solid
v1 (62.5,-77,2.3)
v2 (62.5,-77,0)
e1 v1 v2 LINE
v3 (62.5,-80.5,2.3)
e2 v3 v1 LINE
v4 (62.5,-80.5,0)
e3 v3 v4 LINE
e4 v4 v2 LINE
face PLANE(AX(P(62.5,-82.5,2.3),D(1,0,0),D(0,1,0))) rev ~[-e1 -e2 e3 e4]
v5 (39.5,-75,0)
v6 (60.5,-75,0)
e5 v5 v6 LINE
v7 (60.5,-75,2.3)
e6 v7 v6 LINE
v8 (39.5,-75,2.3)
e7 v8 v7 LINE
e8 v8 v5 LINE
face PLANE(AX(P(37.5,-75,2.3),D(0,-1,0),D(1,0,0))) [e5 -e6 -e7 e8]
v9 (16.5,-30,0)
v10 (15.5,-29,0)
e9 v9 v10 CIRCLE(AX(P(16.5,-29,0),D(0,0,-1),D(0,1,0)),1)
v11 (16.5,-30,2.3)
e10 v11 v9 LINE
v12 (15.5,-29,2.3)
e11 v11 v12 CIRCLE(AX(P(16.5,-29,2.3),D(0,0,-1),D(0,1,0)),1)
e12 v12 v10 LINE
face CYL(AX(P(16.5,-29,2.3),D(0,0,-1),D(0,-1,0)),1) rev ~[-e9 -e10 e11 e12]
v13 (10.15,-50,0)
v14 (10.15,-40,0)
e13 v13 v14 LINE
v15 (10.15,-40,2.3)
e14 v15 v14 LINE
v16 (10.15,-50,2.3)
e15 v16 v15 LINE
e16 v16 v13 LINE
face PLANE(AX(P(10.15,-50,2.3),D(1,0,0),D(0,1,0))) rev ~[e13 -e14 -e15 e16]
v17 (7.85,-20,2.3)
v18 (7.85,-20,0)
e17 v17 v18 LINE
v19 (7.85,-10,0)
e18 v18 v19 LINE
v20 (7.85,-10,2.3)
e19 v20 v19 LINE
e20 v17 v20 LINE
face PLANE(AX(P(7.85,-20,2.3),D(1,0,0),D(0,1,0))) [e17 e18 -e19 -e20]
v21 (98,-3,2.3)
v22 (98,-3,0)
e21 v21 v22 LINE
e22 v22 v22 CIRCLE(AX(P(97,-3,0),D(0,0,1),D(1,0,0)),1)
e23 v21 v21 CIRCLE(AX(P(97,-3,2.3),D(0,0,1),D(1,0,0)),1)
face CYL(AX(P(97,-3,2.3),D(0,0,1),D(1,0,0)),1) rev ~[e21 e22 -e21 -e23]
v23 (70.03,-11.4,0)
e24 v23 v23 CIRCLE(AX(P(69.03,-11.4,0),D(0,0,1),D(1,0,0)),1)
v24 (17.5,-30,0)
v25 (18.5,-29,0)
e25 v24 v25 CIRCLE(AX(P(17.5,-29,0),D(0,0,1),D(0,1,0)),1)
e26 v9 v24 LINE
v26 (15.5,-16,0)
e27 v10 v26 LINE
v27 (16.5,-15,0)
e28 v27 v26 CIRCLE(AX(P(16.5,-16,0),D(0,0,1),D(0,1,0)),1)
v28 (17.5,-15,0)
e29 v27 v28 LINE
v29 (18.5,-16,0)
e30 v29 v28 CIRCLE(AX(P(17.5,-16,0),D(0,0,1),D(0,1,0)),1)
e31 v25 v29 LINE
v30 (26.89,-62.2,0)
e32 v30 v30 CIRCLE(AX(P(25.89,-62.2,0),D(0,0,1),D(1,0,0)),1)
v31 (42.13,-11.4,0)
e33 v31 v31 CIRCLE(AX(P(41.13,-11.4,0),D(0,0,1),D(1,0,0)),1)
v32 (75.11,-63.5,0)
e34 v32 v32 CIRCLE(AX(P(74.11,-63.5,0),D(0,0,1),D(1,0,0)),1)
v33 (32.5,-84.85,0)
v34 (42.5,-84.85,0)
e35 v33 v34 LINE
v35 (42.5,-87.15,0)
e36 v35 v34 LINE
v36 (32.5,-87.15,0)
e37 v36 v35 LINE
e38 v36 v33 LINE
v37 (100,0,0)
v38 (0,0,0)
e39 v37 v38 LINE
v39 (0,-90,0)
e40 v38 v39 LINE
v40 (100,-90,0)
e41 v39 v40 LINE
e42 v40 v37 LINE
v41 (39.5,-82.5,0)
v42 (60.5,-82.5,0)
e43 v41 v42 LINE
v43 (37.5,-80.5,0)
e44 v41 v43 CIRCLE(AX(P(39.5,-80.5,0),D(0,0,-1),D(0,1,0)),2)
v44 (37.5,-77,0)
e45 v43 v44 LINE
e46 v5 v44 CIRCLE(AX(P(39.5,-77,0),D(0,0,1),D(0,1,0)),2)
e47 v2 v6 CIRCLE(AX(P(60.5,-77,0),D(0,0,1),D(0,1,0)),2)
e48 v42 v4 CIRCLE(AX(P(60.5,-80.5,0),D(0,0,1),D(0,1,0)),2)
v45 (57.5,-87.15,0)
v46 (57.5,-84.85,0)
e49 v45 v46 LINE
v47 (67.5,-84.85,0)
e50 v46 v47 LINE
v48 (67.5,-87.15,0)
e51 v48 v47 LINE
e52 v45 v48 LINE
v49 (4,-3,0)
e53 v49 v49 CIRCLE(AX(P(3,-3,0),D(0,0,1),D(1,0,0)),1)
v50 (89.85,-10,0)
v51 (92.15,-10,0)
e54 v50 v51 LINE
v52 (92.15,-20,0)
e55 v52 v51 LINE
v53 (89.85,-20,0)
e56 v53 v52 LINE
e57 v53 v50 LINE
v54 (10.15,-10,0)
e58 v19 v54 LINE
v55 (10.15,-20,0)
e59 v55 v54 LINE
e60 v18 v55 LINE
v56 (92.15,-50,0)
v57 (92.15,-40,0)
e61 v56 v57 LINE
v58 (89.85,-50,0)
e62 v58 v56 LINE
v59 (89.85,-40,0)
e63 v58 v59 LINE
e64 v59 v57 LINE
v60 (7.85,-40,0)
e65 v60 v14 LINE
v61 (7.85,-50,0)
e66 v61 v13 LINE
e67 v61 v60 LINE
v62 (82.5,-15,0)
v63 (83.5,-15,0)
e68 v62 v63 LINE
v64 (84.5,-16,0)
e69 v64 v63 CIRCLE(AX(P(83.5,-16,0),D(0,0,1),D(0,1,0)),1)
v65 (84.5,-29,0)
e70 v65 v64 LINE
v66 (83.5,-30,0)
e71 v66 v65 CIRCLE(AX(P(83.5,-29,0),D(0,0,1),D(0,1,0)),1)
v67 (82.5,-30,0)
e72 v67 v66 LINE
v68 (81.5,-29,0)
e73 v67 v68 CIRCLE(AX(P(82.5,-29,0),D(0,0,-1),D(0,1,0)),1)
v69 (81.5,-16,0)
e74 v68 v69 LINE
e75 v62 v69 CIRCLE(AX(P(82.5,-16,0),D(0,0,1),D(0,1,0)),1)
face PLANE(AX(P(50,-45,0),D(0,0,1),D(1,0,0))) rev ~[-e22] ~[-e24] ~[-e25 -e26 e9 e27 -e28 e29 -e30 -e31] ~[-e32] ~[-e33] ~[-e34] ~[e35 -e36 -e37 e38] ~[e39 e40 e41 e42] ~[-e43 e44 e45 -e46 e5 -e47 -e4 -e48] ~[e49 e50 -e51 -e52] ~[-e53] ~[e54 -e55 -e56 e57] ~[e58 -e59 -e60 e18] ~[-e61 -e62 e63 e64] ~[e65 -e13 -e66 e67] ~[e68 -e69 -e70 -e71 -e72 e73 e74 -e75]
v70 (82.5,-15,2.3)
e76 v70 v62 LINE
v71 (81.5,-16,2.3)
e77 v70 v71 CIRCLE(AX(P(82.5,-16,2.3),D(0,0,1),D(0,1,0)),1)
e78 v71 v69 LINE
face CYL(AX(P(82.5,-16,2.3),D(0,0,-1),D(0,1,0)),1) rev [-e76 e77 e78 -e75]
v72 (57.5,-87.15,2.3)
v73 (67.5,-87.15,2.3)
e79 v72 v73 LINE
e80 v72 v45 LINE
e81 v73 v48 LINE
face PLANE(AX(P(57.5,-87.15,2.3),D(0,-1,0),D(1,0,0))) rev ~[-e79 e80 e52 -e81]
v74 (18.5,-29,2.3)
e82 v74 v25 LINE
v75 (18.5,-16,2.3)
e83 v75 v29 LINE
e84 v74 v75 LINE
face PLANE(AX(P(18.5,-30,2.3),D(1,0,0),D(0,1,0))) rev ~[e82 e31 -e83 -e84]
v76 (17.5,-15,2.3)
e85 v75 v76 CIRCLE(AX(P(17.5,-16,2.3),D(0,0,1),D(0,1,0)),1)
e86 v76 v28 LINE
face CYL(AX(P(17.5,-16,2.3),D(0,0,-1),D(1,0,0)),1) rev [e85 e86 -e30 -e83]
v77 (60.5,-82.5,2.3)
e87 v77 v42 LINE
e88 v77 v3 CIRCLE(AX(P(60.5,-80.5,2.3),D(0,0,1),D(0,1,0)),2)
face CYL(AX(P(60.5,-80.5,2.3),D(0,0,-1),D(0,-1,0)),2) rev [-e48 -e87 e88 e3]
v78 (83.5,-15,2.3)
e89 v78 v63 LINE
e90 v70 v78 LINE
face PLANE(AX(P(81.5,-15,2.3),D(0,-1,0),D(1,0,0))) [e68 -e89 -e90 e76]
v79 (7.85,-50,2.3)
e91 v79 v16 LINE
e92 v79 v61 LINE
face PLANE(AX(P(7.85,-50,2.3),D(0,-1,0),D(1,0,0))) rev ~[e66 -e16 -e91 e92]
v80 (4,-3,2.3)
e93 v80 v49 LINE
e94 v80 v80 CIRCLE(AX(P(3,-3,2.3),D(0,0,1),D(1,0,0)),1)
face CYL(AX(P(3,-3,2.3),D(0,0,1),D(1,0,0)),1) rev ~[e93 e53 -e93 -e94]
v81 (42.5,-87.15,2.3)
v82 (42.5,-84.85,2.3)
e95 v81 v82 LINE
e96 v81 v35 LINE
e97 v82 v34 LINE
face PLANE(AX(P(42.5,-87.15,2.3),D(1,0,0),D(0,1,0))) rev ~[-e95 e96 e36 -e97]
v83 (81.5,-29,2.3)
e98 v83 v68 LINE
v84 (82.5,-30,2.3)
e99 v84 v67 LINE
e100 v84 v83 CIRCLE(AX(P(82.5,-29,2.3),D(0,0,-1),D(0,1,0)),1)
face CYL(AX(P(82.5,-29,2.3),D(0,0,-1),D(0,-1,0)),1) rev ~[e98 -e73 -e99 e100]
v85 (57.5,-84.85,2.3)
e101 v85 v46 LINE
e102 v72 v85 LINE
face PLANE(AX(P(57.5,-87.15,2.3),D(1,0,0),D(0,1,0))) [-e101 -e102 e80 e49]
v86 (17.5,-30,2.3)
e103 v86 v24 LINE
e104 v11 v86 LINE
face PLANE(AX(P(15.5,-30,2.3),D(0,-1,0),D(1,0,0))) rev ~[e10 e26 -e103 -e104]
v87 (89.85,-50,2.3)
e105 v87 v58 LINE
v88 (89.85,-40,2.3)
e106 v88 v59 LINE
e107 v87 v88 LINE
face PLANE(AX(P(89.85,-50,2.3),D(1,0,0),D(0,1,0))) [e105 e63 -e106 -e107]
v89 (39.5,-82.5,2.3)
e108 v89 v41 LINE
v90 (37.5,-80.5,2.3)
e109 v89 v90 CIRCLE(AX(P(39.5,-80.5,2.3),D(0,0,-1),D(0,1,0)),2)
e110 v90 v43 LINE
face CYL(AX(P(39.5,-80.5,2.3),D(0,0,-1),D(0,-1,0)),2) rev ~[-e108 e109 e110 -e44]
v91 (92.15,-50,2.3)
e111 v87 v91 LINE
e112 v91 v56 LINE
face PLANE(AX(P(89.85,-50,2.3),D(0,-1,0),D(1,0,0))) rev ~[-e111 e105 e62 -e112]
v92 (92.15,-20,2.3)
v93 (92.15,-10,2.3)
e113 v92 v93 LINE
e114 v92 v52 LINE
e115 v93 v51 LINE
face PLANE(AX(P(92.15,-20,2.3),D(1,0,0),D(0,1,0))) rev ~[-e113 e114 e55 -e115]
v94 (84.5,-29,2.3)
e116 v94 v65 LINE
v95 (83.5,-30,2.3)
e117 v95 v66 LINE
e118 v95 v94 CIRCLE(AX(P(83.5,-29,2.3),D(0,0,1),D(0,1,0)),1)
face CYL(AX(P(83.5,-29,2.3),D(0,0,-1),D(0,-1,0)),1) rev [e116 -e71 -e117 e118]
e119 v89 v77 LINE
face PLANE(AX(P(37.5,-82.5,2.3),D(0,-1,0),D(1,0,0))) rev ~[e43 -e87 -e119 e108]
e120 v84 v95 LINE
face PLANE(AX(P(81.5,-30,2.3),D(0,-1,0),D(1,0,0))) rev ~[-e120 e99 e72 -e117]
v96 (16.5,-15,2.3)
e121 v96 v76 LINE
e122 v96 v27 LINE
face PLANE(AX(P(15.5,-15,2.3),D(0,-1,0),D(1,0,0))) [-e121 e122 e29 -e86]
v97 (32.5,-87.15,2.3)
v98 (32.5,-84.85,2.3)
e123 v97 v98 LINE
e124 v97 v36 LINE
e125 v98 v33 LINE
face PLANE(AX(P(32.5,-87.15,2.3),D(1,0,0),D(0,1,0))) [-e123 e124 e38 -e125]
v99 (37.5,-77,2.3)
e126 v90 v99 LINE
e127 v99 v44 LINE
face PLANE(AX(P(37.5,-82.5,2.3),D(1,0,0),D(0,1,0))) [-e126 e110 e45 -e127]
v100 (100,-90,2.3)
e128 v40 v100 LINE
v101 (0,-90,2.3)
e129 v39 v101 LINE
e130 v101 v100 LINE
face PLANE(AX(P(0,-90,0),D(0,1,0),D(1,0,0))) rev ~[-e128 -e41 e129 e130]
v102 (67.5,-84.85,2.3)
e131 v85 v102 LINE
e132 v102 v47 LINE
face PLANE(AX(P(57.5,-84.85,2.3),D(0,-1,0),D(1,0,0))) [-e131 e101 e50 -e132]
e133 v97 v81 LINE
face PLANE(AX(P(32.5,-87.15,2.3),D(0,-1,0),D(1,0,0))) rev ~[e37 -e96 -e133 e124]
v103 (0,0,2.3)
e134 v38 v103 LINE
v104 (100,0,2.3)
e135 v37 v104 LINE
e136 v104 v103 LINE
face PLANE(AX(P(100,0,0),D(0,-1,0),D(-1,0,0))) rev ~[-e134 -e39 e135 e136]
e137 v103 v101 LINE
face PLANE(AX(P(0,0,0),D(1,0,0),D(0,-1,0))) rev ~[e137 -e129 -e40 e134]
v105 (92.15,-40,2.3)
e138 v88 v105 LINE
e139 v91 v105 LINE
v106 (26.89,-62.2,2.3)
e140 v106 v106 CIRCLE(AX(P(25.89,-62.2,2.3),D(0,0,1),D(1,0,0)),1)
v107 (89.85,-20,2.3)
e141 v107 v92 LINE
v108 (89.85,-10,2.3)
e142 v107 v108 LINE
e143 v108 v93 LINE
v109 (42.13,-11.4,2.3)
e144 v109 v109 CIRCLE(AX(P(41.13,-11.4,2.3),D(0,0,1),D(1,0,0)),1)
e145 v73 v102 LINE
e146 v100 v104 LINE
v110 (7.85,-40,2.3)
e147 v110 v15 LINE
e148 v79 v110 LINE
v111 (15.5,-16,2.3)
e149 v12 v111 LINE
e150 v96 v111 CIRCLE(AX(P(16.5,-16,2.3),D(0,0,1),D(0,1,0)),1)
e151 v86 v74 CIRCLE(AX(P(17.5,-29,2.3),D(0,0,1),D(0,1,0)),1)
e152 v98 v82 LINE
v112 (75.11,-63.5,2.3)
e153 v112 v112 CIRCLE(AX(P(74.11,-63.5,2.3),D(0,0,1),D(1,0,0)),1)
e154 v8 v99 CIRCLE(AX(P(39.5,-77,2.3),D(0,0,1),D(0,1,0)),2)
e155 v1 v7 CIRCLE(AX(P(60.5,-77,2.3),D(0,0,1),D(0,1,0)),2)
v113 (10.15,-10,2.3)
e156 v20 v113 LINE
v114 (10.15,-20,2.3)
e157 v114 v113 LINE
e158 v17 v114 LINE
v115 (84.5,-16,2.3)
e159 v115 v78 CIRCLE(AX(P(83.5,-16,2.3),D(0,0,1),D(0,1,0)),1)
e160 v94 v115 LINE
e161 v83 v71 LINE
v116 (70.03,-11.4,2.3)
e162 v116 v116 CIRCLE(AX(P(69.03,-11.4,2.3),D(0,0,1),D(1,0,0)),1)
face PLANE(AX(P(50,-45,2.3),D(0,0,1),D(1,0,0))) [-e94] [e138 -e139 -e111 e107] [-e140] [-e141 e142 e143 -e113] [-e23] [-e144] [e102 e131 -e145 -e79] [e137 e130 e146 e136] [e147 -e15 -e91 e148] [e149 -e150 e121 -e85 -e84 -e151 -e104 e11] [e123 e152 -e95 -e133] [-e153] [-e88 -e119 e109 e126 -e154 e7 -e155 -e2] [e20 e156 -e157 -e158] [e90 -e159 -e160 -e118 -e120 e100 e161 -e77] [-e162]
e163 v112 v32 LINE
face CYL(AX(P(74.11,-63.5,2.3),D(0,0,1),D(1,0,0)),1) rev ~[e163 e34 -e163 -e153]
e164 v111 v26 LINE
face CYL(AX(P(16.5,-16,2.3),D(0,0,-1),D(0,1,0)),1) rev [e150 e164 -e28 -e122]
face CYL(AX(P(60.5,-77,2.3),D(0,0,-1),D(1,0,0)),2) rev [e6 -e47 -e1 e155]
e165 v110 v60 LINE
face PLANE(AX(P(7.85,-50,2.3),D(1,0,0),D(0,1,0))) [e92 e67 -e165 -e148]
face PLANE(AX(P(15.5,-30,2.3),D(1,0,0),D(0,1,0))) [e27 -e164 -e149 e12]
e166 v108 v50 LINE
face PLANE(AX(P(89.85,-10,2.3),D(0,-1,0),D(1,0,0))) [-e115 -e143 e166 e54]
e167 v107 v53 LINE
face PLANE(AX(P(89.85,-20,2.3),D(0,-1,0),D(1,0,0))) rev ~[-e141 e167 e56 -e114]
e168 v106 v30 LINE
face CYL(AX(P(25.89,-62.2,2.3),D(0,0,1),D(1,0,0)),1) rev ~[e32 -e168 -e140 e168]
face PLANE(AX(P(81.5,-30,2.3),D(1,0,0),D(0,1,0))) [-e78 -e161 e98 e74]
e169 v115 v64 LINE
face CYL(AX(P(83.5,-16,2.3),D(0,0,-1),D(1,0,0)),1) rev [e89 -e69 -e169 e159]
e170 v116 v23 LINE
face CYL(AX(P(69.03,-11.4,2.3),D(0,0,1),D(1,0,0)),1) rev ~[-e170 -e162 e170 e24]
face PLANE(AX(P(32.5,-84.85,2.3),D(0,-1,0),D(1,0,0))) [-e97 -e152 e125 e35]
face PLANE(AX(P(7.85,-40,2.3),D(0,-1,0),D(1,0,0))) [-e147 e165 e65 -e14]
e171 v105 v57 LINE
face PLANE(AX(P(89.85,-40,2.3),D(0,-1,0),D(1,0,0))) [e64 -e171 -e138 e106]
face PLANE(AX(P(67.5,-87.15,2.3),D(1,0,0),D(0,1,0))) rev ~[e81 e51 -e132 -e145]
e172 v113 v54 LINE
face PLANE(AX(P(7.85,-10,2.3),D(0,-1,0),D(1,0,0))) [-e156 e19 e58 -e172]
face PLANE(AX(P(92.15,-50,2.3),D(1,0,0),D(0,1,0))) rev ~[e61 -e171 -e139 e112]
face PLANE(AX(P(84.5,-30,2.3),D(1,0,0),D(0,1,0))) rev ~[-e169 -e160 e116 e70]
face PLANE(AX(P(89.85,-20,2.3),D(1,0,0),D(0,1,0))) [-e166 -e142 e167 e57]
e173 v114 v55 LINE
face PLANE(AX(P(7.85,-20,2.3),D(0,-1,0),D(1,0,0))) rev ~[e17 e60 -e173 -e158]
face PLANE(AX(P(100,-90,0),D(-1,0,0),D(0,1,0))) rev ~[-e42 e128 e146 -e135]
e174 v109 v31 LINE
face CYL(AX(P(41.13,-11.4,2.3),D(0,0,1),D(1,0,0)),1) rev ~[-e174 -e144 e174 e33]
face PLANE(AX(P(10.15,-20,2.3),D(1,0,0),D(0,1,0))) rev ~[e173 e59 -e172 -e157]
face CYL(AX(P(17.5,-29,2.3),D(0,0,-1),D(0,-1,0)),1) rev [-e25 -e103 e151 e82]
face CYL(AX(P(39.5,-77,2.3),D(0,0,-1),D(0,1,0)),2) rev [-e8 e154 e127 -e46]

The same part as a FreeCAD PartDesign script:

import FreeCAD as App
import Part
import Sketcher

V = App.Vector
Q = App.Units.Quantity


def edges_at(feature, points):
    """Names of the edges that pass closest to the given points."""
    edges = feature.Shape.Edges
    near = lambda p: min(range(len(edges)), key=lambda i: edges[i].distToShape(Part.Vertex(*p))[0])
    return sorted({f"Edge{near(p) + 1}" for p in points})


def add_polygon(sketch, points):
    """Adds a closed chain of lines whose ends are joined by coincident constraints."""
    first, n = sketch.GeometryCount, len(points)
    for a, b in zip(points, points[1:] + points[:1]):
        sketch.addGeometry(Part.LineSegment(App.Vector(*a, 0), App.Vector(*b, 0)), False)
    for i in range(n):
        sketch.addConstraint(Sketcher.Constraint("Coincident", first + i, 2, first + (i + 1) % n, 1))

doc = App.newDocument("Part")
body = doc.addObject("PartDesign::Body", "Body")

# Sketch on XY plane
sketch1 = body.newObject("Sketcher::SketchObject", "Sketch")
sketch1.AttachmentSupport = (doc.getObject("XY_Plane"), [""])
sketch1.MapMode = "FlatFace"
add_polygon(sketch1, [(0, -90), (100, -90), (100, 0), (0, 0)])  # lines 0-3
sketch1.addConstraint([
    Sketcher.Constraint("Horizontal", 0),
    Sketcher.Constraint("Vertical", 1),
    Sketcher.Constraint("Horizontal", 2),
    Sketcher.Constraint("Vertical", 3),
    Sketcher.Constraint("Coincident", 2, 2, -1, 1),
    Sketcher.Constraint("DistanceX", 0, 1, 0, 2, Q("100 mm")),
    Sketcher.Constraint("DistanceY", 1, 1, 1, 2, Q("90 mm")),
])
pad1 = body.newObject("PartDesign::Pad", "Pad")
pad1.Profile = sketch1
pad1.Length = 2.3

# Sketch on XY plane
sketch2 = body.newObject("Sketcher::SketchObject", "Sketch001")
sketch2.AttachmentSupport = (doc.getObject("XY_Plane"), [""])
sketch2.MapMode = "FlatFace"
sketch2.AttachmentOffset = App.Placement(V(0, 0, 2.3), App.Rotation())
add_polygon(sketch2, [(89.8, -10), (89.8, -20), (92.2, -20), (92.2, -10)])  # lines 0-3
add_polygon(sketch2, [(89.8, -40), (89.8, -50), (92.2, -50), (92.2, -40)])  # lines 4-7
add_polygon(sketch2, [(7.8, -10), (7.8, -20), (10.2, -20), (10.2, -10)])  # lines 8-11
add_polygon(sketch2, [(7.8, -40), (7.8, -50), (10.2, -50), (10.2, -40)])  # lines 12-15
add_polygon(sketch2, [(32.5, -84.8), (32.5, -87.2), (42.5, -87.2), (42.5, -84.8)])  # lines 16-19
add_polygon(sketch2, [(57.5, -84.8), (57.5, -87.2), (67.5, -87.2), (67.5, -84.8)])  # lines 20-23
sketch2.addConstraint([
    Sketcher.Constraint("Vertical", 0),
    Sketcher.Constraint("Horizontal", 1),
    Sketcher.Constraint("Vertical", 2),
    Sketcher.Constraint("Horizontal", 3),
    Sketcher.Constraint("Vertical", 4),
    Sketcher.Constraint("Horizontal", 5),
    Sketcher.Constraint("Vertical", 6),
    Sketcher.Constraint("Horizontal", 7),
    Sketcher.Constraint("Vertical", 8),
    Sketcher.Constraint("Horizontal", 9),
    Sketcher.Constraint("Vertical", 10),
    Sketcher.Constraint("Horizontal", 11),
    Sketcher.Constraint("Vertical", 12),
    Sketcher.Constraint("Horizontal", 13),
    Sketcher.Constraint("Vertical", 14),
    Sketcher.Constraint("Horizontal", 15),
    Sketcher.Constraint("Vertical", 16),
    Sketcher.Constraint("Horizontal", 17),
    Sketcher.Constraint("Vertical", 18),
    Sketcher.Constraint("Horizontal", 19),
    Sketcher.Constraint("Vertical", 20),
    Sketcher.Constraint("Horizontal", 21),
    Sketcher.Constraint("Vertical", 22),
    Sketcher.Constraint("Horizontal", 23),
    Sketcher.Constraint("Horizontal", 1, 2, 8, 2),
    Sketcher.Constraint("Horizontal", 3, 2, 10, 2),
    Sketcher.Constraint("Horizontal", 5, 2, 12, 2),
    Sketcher.Constraint("Horizontal", 7, 2, 14, 2),
    Sketcher.Constraint("Horizontal", 17, 2, 20, 2),
    Sketcher.Constraint("Horizontal", 19, 2, 22, 2),
    Sketcher.Constraint("Vertical", 3, 2, 4, 2),
    Sketcher.Constraint("Vertical", 2, 2, 5, 2),
    Sketcher.Constraint("Vertical", 11, 2, 12, 2),
    Sketcher.Constraint("Vertical", 10, 2, 13, 2),
    Sketcher.Constraint("Equal", 7, 9),
    Sketcher.Constraint("Equal", 19, 21),
    Sketcher.Constraint("Equal", 23, 0),
    Sketcher.Constraint("Equal", 2, 4),
    Sketcher.Constraint("Equal", 15, 16),
    Sketcher.Constraint("DistanceX", 17, 1, 17, 2, Q("10 mm")),
    Sketcher.Constraint("DistanceX", 1, 1, 1, 2, Q("2.3 mm")),
    Sketcher.Constraint("DistanceY", 0, 2, -1, 1, Q("20 mm")),
    Sketcher.Constraint("DistanceY", 4, 2, -1, 1, Q("50 mm")),
    Sketcher.Constraint("DistanceX", 8, 2, 0, 2, Q("82 mm")),
    Sketcher.Constraint("DistanceX", 17, 2, 20, 2, Q("15 mm")),
    Sketcher.Constraint("DistanceX", -1, 1, 16, 2, Q("32.5 mm")),
    Sketcher.Constraint("DistanceX", -1, 1, 0, 2, Q("89.85 mm")),
    Sketcher.Constraint("DistanceY", 16, 2, -1, 1, Q("87.15 mm")),
])
pocket1 = body.newObject("PartDesign::Pocket", "Pocket")
pocket1.Profile = sketch2
pocket1.Type = "ThroughAll"

# Sketch on XY plane
sketch3 = body.newObject("Sketcher::SketchObject", "Sketch002")
sketch3.AttachmentSupport = (doc.getObject("XY_Plane"), [""])
sketch3.MapMode = "FlatFace"
sketch3.AttachmentOffset = App.Placement(V(0, 0, 2.3), App.Rotation())
sketch3.addGeometry([
    Part.Circle(V(3, -3, 0), V(0, 0, 1), 1),  # 0
    Part.Circle(V(97, -3, 0), V(0, 0, 1), 1),  # 1
    Part.Circle(V(41.1, -11.4, 0), V(0, 0, 1), 1),  # 2
    Part.Circle(V(69, -11.4, 0), V(0, 0, 1), 1),  # 3
    Part.Circle(V(25.9, -62.2, 0), V(0, 0, 1), 1),  # 4
    Part.Circle(V(74.1, -63.5, 0), V(0, 0, 1), 1),  # 5
], False)
sketch3.addConstraint([
    Sketcher.Constraint("Equal", 0, 1),
    Sketcher.Constraint("Equal", 1, 2),
    Sketcher.Constraint("Equal", 2, 3),
    Sketcher.Constraint("Equal", 3, 4),
    Sketcher.Constraint("Equal", 4, 5),
    Sketcher.Constraint("Horizontal", 0, 3, 1, 3),
    Sketcher.Constraint("Horizontal", 2, 3, 3, 3),
    Sketcher.Constraint("Diameter", 0, Q("2 mm")),
    Sketcher.Constraint("DistanceX", -1, 1, 0, 3, Q("3 mm")),
    Sketcher.Constraint("DistanceY", 0, 3, -1, 1, Q("3 mm")),
    Sketcher.Constraint("DistanceX", -1, 1, 1, 3, Q("97 mm")),
    Sketcher.Constraint("DistanceY", 2, 3, -1, 1, Q("11.4 mm")),
    Sketcher.Constraint("DistanceY", 4, 3, -1, 1, Q("62.2 mm")),
    Sketcher.Constraint("DistanceY", 5, 3, -1, 1, Q("63.5 mm")),
    Sketcher.Constraint("DistanceX", 2, 3, 3, 3, Q("27.9 mm")),
    Sketcher.Constraint("DistanceX", -1, 1, 2, 3, Q("41.13 mm")),
    Sketcher.Constraint("DistanceX", -1, 1, 4, 3, Q("25.89 mm")),
    Sketcher.Constraint("DistanceX", -1, 1, 5, 3, Q("74.11 mm")),
])
pocket2 = body.newObject("PartDesign::Pocket", "Pocket001")
pocket2.Profile = sketch3
pocket2.Type = "ThroughAll"

# Sketch on XY plane
sketch4 = body.newObject("Sketcher::SketchObject", "Sketch003")
sketch4.AttachmentSupport = (doc.getObject("XY_Plane"), [""])
sketch4.MapMode = "FlatFace"
sketch4.AttachmentOffset = App.Placement(V(0, 0, 2.3), App.Rotation())
add_polygon(sketch4, [(15.5, -15), (15.5, -30), (18.5, -30), (18.5, -15)])  # lines 0-3
add_polygon(sketch4, [(81.5, -15), (81.5, -30), (84.5, -30), (84.5, -15)])  # lines 4-7
add_polygon(sketch4, [(37.5, -75), (37.5, -82.5), (62.5, -82.5), (62.5, -75)])  # lines 8-11
sketch4.addConstraint([
    Sketcher.Constraint("Vertical", 0),
    Sketcher.Constraint("Horizontal", 1),
    Sketcher.Constraint("Vertical", 2),
    Sketcher.Constraint("Horizontal", 3),
    Sketcher.Constraint("Vertical", 4),
    Sketcher.Constraint("Horizontal", 5),
    Sketcher.Constraint("Vertical", 6),
    Sketcher.Constraint("Horizontal", 7),
    Sketcher.Constraint("Vertical", 8),
    Sketcher.Constraint("Horizontal", 9),
    Sketcher.Constraint("Vertical", 10),
    Sketcher.Constraint("Horizontal", 11),
    Sketcher.Constraint("Horizontal", 1, 2, 4, 2),
    Sketcher.Constraint("Horizontal", 3, 2, 6, 2),
    Sketcher.Constraint("Equal", 3, 5),
    Sketcher.Constraint("DistanceX", 1, 1, 1, 2, Q("3 mm")),
    Sketcher.Constraint("DistanceX", 9, 1, 9, 2, Q("25 mm")),
    Sketcher.Constraint("DistanceY", 0, 2, 0, 1, Q("15 mm")),
    Sketcher.Constraint("DistanceY", 8, 2, 8, 1, Q("7.5 mm")),
    Sketcher.Constraint("DistanceY", 0, 2, -1, 1, Q("30 mm")),
    Sketcher.Constraint("DistanceY", 10, 2, -1, 1, Q("75 mm")),
    Sketcher.Constraint("DistanceX", 1, 2, 4, 2, Q("63 mm")),
    Sketcher.Constraint("DistanceX", 1, 2, 8, 2, Q("19 mm")),
    Sketcher.Constraint("DistanceX", -1, 1, 0, 2, Q("15.5 mm")),
])
pocket3 = body.newObject("PartDesign::Pocket", "Pocket002")
pocket3.Profile = sketch4
pocket3.Type = "ThroughAll"
doc.recompute()

fillet = body.newObject("PartDesign::Fillet", "Fillet")
fillet.Base = (pocket3, edges_at(pocket3, [
    (15.5, -30, 1.15),
    (15.5, -15, 1.15),
    (18.5, -15, 1.15),
    (18.5, -30, 1.15),
    (81.5, -30, 1.15),
    (81.5, -15, 1.15),
    (84.5, -15, 1.15),
    (84.5, -30, 1.15),
]))
fillet.Radius = 1
doc.recompute()

fillet2 = body.newObject("PartDesign::Fillet", "Fillet001")
fillet2.Base = (fillet, edges_at(fillet, [
    (37.5, -82.5, 1.15),
    (37.5, -75, 1.15),
    (62.5, -75, 1.15),
    (62.5, -82.5, 1.15),
]))
fillet2.Radius = 2

doc.recompute()
